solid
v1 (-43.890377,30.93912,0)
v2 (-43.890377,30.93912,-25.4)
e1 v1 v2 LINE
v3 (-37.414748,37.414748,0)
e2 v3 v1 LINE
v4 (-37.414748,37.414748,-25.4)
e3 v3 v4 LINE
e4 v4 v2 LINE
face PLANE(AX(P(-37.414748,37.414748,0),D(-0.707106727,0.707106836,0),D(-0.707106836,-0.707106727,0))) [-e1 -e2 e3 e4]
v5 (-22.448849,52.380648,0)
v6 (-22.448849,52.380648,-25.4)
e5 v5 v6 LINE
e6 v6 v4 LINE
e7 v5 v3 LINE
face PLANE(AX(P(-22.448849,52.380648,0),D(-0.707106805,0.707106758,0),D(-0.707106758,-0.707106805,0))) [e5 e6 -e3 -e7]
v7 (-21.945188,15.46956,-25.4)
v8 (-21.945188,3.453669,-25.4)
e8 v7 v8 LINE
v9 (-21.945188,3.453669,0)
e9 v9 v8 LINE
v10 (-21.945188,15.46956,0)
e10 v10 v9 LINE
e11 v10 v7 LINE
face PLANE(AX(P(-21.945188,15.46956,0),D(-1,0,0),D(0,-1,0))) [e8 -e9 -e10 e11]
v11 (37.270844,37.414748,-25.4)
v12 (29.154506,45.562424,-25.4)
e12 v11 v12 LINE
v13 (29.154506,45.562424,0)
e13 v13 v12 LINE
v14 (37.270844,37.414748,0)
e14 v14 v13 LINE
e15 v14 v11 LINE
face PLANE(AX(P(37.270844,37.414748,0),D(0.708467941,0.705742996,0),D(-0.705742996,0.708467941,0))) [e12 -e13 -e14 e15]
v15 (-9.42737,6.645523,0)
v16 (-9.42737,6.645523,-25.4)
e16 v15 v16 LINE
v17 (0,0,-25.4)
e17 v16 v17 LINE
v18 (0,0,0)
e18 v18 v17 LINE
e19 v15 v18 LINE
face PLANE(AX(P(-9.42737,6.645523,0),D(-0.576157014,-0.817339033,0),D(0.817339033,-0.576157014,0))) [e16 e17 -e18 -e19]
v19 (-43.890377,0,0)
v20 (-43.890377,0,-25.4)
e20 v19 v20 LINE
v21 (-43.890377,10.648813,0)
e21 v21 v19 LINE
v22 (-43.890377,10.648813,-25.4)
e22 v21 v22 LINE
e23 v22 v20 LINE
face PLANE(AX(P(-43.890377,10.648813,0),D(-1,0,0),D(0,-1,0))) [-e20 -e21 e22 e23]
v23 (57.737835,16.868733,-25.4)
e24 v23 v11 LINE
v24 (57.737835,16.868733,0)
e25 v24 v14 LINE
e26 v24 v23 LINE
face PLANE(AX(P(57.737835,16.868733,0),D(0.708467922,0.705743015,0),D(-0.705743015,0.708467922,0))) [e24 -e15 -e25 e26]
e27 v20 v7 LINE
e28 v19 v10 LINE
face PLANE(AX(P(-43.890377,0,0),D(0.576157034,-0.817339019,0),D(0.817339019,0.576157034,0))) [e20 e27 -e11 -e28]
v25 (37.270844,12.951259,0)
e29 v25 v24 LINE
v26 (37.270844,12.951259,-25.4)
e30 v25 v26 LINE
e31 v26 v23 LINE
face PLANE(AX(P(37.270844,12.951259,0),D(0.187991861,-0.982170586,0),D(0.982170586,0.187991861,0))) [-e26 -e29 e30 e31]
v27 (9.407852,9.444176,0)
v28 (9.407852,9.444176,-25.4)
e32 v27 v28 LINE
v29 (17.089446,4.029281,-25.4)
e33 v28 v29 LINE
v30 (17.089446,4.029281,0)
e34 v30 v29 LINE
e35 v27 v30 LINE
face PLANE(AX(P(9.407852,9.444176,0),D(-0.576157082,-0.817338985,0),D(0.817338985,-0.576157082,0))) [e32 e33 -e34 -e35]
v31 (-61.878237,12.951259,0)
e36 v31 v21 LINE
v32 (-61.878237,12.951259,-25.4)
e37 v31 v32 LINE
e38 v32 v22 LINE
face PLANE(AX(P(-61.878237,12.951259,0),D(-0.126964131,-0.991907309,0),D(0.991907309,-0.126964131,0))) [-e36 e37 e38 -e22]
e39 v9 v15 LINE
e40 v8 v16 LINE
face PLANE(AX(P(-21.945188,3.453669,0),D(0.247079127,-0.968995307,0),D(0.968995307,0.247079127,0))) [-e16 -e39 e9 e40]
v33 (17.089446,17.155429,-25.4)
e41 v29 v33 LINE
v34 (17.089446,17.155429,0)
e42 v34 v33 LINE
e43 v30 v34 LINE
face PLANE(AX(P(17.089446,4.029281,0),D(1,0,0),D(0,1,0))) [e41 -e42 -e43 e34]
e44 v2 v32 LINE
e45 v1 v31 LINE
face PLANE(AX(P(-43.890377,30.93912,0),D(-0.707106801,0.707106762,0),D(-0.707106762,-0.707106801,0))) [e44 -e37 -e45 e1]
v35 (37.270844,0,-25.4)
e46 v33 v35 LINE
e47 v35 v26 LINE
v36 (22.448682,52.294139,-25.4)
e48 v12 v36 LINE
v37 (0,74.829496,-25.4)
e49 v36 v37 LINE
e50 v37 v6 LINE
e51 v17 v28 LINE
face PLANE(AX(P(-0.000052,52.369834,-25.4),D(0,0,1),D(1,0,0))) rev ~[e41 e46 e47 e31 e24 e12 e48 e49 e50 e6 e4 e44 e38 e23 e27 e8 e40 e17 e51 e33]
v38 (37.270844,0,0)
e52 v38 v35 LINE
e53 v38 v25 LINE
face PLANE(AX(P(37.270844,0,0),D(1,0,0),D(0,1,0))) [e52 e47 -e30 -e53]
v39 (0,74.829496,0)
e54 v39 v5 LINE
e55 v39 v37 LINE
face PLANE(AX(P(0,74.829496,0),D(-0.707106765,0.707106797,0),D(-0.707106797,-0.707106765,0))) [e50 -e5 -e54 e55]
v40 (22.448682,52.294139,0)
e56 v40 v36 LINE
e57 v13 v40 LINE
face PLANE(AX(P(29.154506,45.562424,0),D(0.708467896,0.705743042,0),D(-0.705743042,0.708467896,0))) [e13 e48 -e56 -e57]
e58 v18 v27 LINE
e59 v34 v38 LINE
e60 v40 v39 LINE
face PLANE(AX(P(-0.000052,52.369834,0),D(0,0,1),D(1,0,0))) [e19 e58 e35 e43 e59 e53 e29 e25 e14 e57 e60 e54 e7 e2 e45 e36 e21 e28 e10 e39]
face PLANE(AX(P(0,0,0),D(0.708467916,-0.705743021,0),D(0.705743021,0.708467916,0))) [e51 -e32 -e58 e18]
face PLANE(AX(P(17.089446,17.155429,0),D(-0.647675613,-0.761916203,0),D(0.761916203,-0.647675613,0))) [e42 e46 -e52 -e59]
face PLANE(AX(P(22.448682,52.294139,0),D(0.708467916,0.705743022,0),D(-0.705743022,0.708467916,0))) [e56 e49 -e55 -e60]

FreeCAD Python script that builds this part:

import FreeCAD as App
import Part
import Sketcher
Q = App.Units.Quantity

doc = App.newDocument("Part")
params = doc.addObject("Spreadsheet::Sheet", "Params")
for row, (alias, value) in enumerate([
    ("pad1_length", "1 in"),
], start=1):
    params.set(f"A{row}", alias)
    params.set(f"B{row}", "=" + value)
    params.setAlias(f"B{row}", alias)

body = doc.addObject("PartDesign::Body", "Body")

# Sketch on XY plane
sketch1 = body.newObject("Sketcher::SketchObject", "Sketch")
sketch1.AttachmentSupport = (doc.getObject("XY_Plane"), [""])
sketch1.MapMode = "FlatFace"
sketch1.addGeometry([
    Part.LineSegment(App.Vector(0, 75, 0), App.Vector(-22, 52, 0)),  # 0
    Part.LineSegment(App.Vector(-22, 52, 0), App.Vector(-37, 37, 0)),  # 1
    Part.LineSegment(App.Vector(-37, 37, 0), App.Vector(-44, 31, 0)),  # 2
    Part.LineSegment(App.Vector(-44, 31, 0), App.Vector(-62, 13, 0)),  # 3
    Part.LineSegment(App.Vector(-62, 13, 0), App.Vector(-44, 11, 0)),  # 4
    Part.LineSegment(App.Vector(-44, 11, 0), App.Vector(-44, 0, 0)),  # 5
    Part.LineSegment(App.Vector(-44, 0, 0), App.Vector(-22, 15, 0)),  # 6
    Part.LineSegment(App.Vector(-22, 15, 0), App.Vector(-22, 3, 0)),  # 7
    Part.LineSegment(App.Vector(-22, 3, 0), App.Vector(-9, 7, 0)),  # 8
    Part.LineSegment(App.Vector(-9, 7, 0), App.Vector(0, 0, 0)),  # 9
    Part.LineSegment(App.Vector(0, 0, 0), App.Vector(9, 9, 0)),  # 10
    Part.LineSegment(App.Vector(9, 9, 0), App.Vector(17, 4, 0)),  # 11
    Part.LineSegment(App.Vector(17, 4, 0), App.Vector(17, 17, 0)),  # 12
    Part.LineSegment(App.Vector(17, 17, 0), App.Vector(37, 0, 0)),  # 13
    Part.LineSegment(App.Vector(37, 0, 0), App.Vector(37, 13, 0)),  # 14
    Part.LineSegment(App.Vector(37, 13, 0), App.Vector(58, 17, 0)),  # 15
    Part.LineSegment(App.Vector(58, 17, 0), App.Vector(37, 37, 0)),  # 16
    Part.LineSegment(App.Vector(37, 37, 0), App.Vector(29, 46, 0)),  # 17
    Part.LineSegment(App.Vector(29, 46, 0), App.Vector(22, 52, 0)),  # 18
    Part.LineSegment(App.Vector(22, 52, 0), App.Vector(0, 75, 0)),  # 19
], False)
sketch1.addConstraint([
    Sketcher.Constraint("Coincident", 0, 2, 1, 1),
    Sketcher.Constraint("Coincident", 1, 2, 2, 1),
    Sketcher.Constraint("Coincident", 2, 2, 3, 1),
    Sketcher.Constraint("Coincident", 3, 2, 4, 1),
    Sketcher.Constraint("Coincident", 4, 2, 5, 1),
    Sketcher.Constraint("Coincident", 5, 2, 6, 1),
    Sketcher.Constraint("Coincident", 6, 2, 7, 1),
    Sketcher.Constraint("Coincident", 7, 2, 8, 1),
    Sketcher.Constraint("Coincident", 8, 2, 9, 1),
    Sketcher.Constraint("Coincident", 9, 2, 10, 1),
    Sketcher.Constraint("Coincident", 10, 2, 11, 1),
    Sketcher.Constraint("Coincident", 11, 2, 12, 1),
    Sketcher.Constraint("Coincident", 12, 2, 13, 1),
    Sketcher.Constraint("Coincident", 13, 2, 14, 1),
    Sketcher.Constraint("Coincident", 14, 2, 15, 1),
    Sketcher.Constraint("Coincident", 15, 2, 16, 1),
    Sketcher.Constraint("Coincident", 16, 2, 17, 1),
    Sketcher.Constraint("Coincident", 17, 2, 18, 1),
    Sketcher.Constraint("Coincident", 18, 2, 19, 1),
    Sketcher.Constraint("Coincident", 19, 2, 0, 1),
    Sketcher.Constraint("Vertical", 5),
    Sketcher.Constraint("Vertical", 7),
    Sketcher.Constraint("Vertical", 12),
    Sketcher.Constraint("Vertical", 14),
    Sketcher.Constraint("Coincident", 9, 2, -1, 1),
    Sketcher.Constraint("PointOnObject", 5, 2, -1),
    Sketcher.Constraint("PointOnObject", 13, 2, -1),
    Sketcher.Constraint("PointOnObject", 19, 2, -2),
    Sketcher.Constraint("Parallel", 0, 1),
    Sketcher.Constraint("Parallel", 1, 2),
    Sketcher.Constraint("Parallel", 2, 3),
    Sketcher.Constraint("Parallel", 9, 11),
    Sketcher.Constraint("Parallel", 16, 17),
    Sketcher.Constraint("Parallel", 17, 18),
    Sketcher.Constraint("Parallel", 18, 19),
    Sketcher.Constraint("Horizontal", 3, 2, 14, 2),
    Sketcher.Constraint("Horizontal", 1, 2, 16, 2),
    Sketcher.Constraint("Vertical", 2, 2, 4, 2),
    Sketcher.Constraint("Vertical", 14, 2, 16, 2),
    Sketcher.Constraint("Angle", 0, Q("-135.000001 deg")),
    Sketcher.Constraint("DistanceY", 7, 2, 7, 1, Q("12.015891 mm")),
    Sketcher.Constraint("DistanceY", 14, 1, 14, 2, Q("12.951259 mm")),
    Sketcher.Constraint("DistanceX", 1, 2, 0, 2, Q("14.965899 mm")),
    Sketcher.Constraint("Distance", 2, Q("9.157922 mm")),
    Sketcher.Constraint("Distance", 10, Q("13.330422 mm")),
    Sketcher.Constraint("Distance", 15, Q("20.83853 mm")),
    Sketcher.Constraint("Distance", 16, Q("29.000628 mm")),
    Sketcher.Constraint("Distance", 19, Q("31.808578 mm")),
    Sketcher.Constraint("DistanceY", 5, 2, 5, 1, Q("10.648813 mm")),
    Sketcher.Constraint("DistanceY", 12, 1, 12, 2, Q("13.126148 mm")),
    Sketcher.Constraint("DistanceX", 0, 2, -1, 1, Q("22.448849 mm")),
    Sketcher.Constraint("DistanceY", -1, 1, 1, 2, Q("37.414748 mm")),
    Sketcher.Constraint("DistanceX", 6, 2, -1, 1, Q("21.945188 mm")),
    Sketcher.Constraint("DistanceY", -1, 1, 6, 2, Q("15.46956 mm")),
    Sketcher.Constraint("DistanceX", 8, 2, -1, 1, Q("9.42737 mm")),
    Sketcher.Constraint("DistanceY", -1, 1, 11, 2, Q("4.029281 mm")),
    Sketcher.Constraint("DistanceY", 8, 2, 4, 2, Q("4.00329 mm")),
    Sketcher.Constraint("DistanceX", 7, 2, 10, 2, Q("31.35304 mm")),
    Sketcher.Constraint("DistanceX", 12, 2, 17, 2, Q("12.06506 mm")),
])
pad1 = body.newObject("PartDesign::Pad", "Pad")
pad1.Profile = sketch1
pad1.setExpression("Length", "Params.pad1_length")
pad1.Reversed = True

doc.recompute()
